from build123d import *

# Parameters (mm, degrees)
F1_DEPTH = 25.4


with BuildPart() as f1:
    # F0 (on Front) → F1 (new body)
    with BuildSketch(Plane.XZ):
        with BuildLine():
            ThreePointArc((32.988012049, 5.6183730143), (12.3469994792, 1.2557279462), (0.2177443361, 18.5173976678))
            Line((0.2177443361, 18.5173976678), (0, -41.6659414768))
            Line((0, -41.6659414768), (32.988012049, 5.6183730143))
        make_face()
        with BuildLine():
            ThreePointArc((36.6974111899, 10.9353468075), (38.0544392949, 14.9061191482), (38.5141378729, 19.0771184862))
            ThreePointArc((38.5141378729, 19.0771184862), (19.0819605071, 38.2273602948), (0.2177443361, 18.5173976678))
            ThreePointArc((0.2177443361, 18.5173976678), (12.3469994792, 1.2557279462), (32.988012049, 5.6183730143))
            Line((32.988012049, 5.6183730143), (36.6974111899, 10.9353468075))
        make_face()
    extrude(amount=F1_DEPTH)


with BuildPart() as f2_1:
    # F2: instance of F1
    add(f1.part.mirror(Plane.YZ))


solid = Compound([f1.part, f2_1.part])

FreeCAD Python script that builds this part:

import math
import FreeCAD as App
import Part
import Sketcher

V = App.Vector
Q = App.Units.Quantity

doc = App.newDocument("Part")
body = doc.addObject("PartDesign::Body", "Body")

# Sketch on XZ plane
sketch1 = body.newObject("Sketcher::SketchObject", "Sketch")
sketch1.AttachmentSupport = (doc.getObject("XZ_Plane"), [""])
sketch1.MapMode = "FlatFace"
sketch1.addGeometry([
    Part.LineSegment(V(0, 19, 0), V(0, -42, 0)),
    Part.LineSegment(V(0, -42, 0), V(33, 6, 0)),
    Part.LineSegment(V(33, 6, 0), V(37, 11, 0)),
    Part.ArcOfCircle(Part.Circle(V(19, 19, 0), V(0, 0, 1), 19), math.radians(-25), math.radians(182)),
], False)
sketch1.addConstraint([
    Sketcher.Constraint("Coincident", 0, 2, 1, 1),
    Sketcher.Constraint("Coincident", 1, 2, 2, 1),
    Sketcher.Constraint("Coincident", 2, 2, 3, 1),
    Sketcher.Constraint("Coincident", 3, 2, 0, 1),
    Sketcher.Constraint("PointOnObject", 0, 2, -2),
    Sketcher.Constraint("Parallel", 1, 2),
    Sketcher.Constraint("Radius", 3, 19.152287),
    Sketcher.Constraint("DistanceX", 1, 2, 2, 2, 3.709399),
    Sketcher.Constraint("DistanceX", -1, 1, 3, 3, 19.361851),
    Sketcher.Constraint("DistanceY", -1, 1, 3, 3, 19.077118),
    Sketcher.Constraint("DistanceY", 0, 2, -1, 1, 41.665941),
    Sketcher.Constraint("DistanceX", -1, 1, 2, 2, 36.697411),
    Sketcher.Constraint("DistanceY", 3, 2, 3, 3, 0.559721),
])
pad1 = body.newObject("PartDesign::Pad", "Pad")
pad1.Profile = sketch1
pad1.Length = Q("1 in")
body2 = doc.addObject("PartDesign::Body", "Body001")
doc.recompute()

mirroring = doc.addObject("Part::Mirroring", "Mirroring")
mirroring.Source = body
mirroring.Base = V(0, 0, 0)
mirroring.Normal = V(1, 0, 0)
body2.BaseFeature = mirroring
doc.recompute()
mirroring.Visibility = False

doc.recompute()
